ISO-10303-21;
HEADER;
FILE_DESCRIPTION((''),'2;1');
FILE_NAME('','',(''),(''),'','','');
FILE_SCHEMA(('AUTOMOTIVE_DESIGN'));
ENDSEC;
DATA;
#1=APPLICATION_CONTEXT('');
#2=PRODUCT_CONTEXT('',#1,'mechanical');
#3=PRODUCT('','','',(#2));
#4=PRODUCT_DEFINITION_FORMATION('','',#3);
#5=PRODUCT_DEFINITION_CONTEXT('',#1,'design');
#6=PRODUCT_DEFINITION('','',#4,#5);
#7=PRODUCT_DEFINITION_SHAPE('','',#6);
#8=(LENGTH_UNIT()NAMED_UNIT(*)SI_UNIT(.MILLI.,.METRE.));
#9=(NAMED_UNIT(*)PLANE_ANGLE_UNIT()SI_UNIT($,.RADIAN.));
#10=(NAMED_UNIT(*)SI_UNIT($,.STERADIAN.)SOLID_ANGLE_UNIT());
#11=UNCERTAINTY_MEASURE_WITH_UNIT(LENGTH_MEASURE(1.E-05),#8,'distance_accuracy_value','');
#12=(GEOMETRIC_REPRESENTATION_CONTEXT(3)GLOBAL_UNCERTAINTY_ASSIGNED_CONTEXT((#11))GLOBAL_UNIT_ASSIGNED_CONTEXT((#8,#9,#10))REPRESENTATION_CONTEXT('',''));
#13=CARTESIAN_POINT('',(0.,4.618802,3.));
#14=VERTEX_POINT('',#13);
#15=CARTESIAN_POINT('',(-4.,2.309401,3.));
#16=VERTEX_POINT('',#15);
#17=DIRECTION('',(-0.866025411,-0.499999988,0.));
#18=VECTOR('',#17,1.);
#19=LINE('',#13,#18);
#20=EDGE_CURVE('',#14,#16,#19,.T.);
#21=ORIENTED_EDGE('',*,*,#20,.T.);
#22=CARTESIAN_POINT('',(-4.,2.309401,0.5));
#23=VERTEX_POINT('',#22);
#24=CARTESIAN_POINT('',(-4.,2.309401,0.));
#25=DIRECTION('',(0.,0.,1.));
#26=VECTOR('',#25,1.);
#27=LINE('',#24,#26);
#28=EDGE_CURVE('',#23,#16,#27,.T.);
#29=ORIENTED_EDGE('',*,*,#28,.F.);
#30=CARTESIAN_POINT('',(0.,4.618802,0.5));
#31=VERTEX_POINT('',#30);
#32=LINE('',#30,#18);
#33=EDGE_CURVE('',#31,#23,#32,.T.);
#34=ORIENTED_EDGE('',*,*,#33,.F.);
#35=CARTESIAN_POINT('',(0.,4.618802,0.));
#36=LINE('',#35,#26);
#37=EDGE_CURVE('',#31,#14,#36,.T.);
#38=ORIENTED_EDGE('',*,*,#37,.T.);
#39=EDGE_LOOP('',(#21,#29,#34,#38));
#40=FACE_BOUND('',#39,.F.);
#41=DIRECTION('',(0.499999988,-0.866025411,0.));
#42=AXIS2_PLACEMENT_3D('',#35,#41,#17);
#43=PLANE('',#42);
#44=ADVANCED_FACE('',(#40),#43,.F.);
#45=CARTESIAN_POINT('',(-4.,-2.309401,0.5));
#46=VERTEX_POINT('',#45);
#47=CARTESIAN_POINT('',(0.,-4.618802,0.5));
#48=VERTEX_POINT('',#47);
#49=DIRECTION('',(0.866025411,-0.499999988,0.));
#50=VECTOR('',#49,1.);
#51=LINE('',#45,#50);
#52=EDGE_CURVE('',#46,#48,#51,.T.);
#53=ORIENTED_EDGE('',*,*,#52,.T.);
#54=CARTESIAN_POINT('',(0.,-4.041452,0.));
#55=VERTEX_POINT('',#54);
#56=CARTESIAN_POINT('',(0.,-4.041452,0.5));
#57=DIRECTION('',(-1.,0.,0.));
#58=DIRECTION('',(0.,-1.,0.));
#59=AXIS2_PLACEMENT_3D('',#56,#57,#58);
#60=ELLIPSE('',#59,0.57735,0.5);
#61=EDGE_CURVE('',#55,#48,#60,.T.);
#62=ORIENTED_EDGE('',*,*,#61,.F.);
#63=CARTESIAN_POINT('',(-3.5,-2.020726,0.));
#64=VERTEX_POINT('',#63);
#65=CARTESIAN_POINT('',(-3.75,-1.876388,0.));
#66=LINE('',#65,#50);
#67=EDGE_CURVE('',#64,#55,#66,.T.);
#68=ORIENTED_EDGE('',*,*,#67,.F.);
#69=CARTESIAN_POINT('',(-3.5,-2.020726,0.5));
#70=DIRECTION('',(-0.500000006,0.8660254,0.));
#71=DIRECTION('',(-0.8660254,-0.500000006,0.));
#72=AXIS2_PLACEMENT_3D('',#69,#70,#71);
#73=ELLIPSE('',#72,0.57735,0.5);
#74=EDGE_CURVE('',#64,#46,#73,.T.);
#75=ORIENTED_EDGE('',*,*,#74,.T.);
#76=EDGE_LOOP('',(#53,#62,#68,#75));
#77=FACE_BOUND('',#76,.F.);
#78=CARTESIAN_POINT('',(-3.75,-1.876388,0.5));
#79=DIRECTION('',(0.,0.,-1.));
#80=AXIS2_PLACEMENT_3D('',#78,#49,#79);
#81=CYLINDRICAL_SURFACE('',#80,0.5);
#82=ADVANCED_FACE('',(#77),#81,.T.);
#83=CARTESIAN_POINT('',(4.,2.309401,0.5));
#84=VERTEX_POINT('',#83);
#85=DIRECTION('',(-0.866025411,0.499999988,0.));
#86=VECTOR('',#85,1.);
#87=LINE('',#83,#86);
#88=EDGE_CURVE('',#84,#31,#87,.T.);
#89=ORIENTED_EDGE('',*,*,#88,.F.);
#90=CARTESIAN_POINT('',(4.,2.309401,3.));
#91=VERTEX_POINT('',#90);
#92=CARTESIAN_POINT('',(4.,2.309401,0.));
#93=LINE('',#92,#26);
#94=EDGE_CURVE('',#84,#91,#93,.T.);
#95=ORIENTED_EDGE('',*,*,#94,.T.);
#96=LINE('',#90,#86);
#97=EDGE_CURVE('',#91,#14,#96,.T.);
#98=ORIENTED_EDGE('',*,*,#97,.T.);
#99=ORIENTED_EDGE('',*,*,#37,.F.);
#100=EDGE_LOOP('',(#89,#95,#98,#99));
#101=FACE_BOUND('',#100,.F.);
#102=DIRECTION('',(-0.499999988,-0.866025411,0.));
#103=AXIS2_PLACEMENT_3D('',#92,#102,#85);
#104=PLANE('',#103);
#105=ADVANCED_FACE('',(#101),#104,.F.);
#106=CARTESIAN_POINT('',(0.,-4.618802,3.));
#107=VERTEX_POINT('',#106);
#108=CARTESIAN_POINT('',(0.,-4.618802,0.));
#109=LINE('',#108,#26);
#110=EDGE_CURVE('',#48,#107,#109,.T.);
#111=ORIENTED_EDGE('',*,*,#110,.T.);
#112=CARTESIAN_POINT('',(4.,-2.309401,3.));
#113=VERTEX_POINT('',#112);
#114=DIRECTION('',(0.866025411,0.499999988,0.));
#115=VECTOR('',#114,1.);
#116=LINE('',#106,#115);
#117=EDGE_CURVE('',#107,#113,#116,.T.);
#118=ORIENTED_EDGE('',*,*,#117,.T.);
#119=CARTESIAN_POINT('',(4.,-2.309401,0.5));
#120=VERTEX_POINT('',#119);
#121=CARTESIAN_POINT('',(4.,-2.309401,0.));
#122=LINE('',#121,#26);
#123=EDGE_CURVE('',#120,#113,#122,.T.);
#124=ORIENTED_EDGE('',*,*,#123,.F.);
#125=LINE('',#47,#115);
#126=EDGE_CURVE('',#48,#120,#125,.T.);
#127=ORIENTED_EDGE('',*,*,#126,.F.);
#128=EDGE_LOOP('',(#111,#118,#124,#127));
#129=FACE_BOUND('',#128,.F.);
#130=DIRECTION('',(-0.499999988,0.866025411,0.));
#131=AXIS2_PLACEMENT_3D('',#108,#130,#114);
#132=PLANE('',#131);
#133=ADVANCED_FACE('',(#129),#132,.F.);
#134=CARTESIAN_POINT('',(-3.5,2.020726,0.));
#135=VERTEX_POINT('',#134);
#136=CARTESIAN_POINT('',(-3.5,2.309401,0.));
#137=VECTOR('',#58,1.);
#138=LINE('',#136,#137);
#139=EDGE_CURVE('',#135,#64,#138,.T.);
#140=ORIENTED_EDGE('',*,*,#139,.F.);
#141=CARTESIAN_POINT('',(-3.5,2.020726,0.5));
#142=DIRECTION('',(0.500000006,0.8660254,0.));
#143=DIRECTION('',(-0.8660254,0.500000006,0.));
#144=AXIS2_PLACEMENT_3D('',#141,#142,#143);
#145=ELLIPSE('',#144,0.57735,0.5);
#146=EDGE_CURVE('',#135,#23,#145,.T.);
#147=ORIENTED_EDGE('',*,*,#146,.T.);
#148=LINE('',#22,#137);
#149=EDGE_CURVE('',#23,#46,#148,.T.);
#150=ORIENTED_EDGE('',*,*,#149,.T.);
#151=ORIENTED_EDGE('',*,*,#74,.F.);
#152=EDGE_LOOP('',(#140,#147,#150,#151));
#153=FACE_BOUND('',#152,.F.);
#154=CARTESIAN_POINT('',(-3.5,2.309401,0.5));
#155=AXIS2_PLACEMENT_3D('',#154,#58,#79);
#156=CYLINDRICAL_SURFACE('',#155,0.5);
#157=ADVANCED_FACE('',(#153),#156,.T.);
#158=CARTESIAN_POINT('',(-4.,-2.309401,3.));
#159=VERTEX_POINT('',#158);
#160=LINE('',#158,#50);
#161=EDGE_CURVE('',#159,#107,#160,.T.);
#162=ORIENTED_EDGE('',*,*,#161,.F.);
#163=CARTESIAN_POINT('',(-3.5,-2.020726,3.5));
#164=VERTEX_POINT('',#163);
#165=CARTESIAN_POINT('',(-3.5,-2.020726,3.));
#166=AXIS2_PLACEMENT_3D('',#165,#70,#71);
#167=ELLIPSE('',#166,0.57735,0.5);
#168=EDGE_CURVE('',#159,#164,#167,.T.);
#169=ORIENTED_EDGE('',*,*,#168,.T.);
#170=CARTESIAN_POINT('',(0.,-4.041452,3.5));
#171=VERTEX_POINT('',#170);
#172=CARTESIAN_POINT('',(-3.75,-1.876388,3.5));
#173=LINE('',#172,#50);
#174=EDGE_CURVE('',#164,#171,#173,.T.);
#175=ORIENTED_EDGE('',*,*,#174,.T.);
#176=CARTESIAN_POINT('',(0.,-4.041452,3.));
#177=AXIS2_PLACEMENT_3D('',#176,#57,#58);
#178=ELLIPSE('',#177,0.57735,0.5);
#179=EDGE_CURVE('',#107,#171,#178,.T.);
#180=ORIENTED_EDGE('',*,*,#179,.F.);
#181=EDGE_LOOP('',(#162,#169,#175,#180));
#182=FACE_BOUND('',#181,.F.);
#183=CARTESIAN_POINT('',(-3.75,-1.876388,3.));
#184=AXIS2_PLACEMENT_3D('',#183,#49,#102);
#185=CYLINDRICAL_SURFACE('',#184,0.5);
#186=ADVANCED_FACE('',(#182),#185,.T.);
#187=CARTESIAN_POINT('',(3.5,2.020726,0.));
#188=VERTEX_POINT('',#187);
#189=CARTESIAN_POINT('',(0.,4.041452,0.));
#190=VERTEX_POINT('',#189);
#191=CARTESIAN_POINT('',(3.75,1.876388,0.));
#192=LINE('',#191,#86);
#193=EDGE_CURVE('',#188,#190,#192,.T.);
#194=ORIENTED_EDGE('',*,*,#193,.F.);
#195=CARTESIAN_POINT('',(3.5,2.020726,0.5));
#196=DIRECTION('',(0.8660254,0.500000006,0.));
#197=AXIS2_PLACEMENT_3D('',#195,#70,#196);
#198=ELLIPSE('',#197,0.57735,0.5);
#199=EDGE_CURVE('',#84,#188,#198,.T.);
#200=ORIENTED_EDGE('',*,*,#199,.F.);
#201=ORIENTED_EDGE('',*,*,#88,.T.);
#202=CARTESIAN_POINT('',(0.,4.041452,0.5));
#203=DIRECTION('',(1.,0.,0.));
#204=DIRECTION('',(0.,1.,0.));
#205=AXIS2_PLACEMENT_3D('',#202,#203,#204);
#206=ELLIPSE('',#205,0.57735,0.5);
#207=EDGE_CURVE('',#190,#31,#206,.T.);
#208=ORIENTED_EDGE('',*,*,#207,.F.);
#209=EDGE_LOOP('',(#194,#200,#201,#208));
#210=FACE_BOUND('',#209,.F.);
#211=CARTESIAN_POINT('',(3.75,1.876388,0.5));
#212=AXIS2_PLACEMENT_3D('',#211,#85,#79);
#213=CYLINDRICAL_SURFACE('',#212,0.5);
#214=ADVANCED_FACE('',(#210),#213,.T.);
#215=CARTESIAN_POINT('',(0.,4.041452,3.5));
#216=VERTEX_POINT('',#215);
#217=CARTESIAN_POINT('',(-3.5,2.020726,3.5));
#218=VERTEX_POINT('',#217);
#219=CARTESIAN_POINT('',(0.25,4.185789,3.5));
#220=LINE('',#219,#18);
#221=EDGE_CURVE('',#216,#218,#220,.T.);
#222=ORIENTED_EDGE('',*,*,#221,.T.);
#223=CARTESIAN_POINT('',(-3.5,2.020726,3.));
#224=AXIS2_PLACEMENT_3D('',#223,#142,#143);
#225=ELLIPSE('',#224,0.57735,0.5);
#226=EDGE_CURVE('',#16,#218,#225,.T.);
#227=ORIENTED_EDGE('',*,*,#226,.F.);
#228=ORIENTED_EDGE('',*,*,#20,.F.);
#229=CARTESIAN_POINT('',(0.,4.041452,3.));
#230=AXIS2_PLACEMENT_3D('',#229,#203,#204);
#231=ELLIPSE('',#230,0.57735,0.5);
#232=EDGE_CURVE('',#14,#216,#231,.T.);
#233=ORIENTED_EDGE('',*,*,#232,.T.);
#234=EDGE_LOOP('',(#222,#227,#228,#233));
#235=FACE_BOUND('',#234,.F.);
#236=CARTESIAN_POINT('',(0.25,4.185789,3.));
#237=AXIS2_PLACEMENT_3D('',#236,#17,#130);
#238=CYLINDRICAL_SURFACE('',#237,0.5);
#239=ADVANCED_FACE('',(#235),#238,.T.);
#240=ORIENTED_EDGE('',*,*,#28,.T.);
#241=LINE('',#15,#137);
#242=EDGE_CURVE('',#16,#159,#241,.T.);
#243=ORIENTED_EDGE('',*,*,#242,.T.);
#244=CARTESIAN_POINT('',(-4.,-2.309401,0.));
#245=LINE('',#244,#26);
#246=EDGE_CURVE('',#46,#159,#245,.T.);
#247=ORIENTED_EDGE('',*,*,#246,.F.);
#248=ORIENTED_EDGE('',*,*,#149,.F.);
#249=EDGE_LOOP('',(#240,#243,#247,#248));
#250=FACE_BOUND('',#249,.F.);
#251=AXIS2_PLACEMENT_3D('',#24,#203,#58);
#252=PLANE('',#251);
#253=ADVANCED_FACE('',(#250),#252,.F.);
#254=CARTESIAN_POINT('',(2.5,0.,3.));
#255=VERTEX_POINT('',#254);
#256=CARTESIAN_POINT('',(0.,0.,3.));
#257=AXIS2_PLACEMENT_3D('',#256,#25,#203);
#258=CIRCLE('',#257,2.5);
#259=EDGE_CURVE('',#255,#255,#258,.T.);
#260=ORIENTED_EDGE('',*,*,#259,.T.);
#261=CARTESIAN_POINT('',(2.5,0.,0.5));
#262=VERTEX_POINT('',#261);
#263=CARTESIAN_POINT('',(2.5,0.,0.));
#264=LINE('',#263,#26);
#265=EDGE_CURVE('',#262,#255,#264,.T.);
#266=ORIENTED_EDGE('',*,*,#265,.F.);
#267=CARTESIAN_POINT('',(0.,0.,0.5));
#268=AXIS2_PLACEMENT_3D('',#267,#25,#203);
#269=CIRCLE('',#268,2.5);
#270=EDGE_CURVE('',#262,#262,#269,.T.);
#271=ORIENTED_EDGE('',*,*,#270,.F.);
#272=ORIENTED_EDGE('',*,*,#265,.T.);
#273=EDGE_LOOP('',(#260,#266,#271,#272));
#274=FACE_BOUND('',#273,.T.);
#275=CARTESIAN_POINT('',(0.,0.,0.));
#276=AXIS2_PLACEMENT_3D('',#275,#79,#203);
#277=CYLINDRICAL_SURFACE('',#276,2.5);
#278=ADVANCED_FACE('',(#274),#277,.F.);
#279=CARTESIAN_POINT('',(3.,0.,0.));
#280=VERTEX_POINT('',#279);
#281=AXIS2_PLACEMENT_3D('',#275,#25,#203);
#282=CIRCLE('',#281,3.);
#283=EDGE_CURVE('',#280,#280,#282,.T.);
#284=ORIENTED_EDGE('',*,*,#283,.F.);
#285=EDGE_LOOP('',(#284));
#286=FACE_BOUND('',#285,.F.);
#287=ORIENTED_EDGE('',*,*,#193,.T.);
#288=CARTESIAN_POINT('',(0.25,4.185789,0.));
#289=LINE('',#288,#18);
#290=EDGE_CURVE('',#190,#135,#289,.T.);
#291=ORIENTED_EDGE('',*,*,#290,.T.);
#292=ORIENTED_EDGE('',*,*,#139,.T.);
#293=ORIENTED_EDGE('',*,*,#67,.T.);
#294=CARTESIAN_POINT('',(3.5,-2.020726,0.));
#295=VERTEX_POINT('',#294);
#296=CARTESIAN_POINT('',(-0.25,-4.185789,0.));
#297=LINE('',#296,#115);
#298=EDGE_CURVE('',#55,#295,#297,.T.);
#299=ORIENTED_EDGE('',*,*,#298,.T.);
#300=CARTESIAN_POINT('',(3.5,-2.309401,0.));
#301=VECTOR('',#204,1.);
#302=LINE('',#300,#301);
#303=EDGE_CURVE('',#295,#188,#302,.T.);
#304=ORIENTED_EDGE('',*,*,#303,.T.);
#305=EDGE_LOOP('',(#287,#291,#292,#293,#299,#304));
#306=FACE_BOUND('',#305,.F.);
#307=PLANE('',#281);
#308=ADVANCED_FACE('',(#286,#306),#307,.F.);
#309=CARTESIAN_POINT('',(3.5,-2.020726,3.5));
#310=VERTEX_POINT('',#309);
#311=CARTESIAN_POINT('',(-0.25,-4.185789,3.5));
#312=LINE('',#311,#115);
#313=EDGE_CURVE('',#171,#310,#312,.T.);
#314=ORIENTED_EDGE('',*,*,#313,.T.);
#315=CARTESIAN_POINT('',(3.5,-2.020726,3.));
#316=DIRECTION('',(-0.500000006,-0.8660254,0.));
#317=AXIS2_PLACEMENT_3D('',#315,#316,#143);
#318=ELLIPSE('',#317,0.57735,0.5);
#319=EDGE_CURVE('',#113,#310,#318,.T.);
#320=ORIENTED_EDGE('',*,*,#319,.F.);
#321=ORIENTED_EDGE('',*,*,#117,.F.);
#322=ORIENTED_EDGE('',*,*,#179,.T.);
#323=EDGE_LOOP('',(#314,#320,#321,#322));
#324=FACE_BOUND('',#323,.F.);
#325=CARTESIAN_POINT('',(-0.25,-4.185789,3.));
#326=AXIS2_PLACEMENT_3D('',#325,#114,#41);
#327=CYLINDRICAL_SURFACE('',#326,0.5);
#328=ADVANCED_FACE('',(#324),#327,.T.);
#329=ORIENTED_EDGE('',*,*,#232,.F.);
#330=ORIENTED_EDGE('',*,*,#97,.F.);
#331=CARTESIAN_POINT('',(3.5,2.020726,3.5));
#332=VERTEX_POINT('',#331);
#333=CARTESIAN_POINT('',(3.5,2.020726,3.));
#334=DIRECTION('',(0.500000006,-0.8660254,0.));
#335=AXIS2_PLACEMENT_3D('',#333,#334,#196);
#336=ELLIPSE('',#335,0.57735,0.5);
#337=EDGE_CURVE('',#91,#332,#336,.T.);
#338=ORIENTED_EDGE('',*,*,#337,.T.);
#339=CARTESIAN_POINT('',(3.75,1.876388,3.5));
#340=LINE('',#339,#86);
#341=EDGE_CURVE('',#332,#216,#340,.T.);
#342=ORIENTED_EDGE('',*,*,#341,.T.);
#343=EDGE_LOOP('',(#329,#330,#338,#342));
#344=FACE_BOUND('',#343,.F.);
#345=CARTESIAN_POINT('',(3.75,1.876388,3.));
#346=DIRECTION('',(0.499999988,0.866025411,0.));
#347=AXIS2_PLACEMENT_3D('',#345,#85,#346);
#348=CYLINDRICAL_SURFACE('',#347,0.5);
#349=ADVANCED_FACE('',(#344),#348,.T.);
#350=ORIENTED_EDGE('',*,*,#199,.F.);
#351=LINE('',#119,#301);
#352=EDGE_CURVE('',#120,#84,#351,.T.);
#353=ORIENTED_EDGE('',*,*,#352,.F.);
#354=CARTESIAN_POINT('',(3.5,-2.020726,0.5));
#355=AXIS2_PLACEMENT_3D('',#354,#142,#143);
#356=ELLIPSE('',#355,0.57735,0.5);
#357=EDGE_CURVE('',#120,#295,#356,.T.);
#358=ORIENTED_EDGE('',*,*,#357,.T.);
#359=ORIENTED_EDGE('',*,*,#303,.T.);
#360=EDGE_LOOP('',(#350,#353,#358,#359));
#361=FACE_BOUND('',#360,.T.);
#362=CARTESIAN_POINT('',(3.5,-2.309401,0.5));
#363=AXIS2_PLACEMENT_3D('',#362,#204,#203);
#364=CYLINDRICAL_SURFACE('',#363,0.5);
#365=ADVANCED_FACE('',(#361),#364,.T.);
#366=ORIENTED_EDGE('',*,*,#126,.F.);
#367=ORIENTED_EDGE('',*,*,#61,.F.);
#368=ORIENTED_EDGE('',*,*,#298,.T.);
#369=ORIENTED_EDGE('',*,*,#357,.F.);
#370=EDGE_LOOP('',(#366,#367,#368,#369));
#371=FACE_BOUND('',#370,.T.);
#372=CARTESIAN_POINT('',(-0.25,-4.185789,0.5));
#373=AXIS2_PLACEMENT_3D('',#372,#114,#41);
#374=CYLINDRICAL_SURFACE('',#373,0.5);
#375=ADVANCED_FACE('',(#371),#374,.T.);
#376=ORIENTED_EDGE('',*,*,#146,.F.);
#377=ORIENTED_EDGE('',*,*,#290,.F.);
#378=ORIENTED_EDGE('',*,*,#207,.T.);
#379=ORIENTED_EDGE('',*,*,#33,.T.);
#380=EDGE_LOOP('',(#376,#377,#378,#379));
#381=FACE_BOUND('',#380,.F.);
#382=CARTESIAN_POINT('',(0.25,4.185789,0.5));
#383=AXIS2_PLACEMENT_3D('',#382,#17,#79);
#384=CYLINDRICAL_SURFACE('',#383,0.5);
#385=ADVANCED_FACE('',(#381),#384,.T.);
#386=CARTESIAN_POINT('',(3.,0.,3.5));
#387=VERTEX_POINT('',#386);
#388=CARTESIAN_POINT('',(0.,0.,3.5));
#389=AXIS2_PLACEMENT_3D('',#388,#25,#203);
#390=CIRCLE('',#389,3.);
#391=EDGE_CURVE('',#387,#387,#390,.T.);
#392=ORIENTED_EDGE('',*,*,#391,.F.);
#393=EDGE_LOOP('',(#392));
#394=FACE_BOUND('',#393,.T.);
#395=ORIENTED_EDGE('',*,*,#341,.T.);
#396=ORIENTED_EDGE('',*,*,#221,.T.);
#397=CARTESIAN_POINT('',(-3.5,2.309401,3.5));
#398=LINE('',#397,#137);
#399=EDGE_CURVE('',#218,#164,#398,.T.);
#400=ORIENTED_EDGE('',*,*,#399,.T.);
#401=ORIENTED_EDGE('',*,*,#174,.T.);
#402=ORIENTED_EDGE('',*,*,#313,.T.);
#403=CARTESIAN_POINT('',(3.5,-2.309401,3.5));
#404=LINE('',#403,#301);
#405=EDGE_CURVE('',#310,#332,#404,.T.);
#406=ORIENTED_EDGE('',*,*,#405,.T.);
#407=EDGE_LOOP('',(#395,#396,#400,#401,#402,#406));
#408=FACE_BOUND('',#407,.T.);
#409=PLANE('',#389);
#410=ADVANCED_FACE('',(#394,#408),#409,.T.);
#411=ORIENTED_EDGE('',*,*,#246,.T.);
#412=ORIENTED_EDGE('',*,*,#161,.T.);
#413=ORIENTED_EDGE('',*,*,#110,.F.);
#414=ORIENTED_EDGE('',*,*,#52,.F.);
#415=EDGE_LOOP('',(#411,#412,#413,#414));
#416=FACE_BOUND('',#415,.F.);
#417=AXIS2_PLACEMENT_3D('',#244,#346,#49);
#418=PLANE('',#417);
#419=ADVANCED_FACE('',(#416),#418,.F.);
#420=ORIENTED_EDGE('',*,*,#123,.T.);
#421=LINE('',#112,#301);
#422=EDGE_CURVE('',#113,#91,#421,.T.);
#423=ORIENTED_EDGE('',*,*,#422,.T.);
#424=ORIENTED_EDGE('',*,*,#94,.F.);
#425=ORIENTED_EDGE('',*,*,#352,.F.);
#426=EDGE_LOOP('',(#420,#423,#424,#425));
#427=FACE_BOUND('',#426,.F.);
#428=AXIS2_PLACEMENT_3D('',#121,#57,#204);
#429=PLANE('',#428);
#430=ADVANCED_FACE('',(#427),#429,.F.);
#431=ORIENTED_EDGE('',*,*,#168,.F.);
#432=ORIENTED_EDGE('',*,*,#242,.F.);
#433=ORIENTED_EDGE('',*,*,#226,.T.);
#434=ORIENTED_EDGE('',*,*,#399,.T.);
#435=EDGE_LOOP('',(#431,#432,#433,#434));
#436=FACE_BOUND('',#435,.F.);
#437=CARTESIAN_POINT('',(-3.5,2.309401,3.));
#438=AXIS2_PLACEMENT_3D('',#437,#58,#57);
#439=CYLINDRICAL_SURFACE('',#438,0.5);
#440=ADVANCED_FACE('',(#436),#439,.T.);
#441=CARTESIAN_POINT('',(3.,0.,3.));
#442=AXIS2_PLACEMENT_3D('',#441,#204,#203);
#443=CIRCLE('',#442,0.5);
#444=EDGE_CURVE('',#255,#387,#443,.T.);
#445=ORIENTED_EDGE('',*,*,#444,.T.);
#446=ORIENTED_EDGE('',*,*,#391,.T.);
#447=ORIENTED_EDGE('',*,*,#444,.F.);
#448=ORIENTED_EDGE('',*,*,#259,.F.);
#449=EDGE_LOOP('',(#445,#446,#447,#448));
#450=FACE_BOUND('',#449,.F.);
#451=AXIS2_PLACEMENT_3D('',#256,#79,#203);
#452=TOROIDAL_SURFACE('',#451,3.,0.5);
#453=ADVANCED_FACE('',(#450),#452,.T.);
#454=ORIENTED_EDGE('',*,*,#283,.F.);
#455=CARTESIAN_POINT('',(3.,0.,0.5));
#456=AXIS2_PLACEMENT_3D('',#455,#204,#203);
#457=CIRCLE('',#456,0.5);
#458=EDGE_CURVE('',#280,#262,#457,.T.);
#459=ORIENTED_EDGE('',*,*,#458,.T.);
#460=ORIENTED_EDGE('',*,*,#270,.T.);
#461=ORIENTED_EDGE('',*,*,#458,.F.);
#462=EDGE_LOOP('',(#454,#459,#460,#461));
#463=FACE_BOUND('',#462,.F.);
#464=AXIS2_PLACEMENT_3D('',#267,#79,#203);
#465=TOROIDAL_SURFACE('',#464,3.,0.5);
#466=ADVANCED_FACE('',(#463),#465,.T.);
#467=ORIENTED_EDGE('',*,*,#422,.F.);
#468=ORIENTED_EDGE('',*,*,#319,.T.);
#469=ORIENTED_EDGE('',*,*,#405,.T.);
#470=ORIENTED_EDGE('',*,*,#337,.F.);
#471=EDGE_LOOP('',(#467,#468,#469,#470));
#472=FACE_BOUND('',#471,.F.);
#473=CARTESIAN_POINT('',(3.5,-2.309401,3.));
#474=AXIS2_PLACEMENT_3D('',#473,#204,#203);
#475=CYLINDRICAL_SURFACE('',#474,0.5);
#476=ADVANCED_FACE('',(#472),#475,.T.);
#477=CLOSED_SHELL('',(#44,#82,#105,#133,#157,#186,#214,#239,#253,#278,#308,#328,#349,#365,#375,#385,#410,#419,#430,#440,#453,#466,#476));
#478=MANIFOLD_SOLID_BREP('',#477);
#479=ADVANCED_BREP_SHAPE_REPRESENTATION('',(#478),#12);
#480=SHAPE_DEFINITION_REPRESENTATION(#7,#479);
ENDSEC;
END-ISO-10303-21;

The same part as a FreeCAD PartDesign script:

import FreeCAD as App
import Part
import Sketcher
from FreeCAD import Vector
Q = App.Units.Quantity


def edges_at(feature, points):
    """Names of the edges that pass closest to the given points."""
    edges = feature.Shape.Edges
    near = lambda p: min(range(len(edges)), key=lambda i: edges[i].distToShape(Part.Vertex(*p))[0])
    return sorted({f"Edge{near(p) + 1}" for p in points})


def add_polygon(sketch, points):
    """Adds a closed chain of lines whose ends are joined by coincident constraints."""
    first, n = sketch.GeometryCount, len(points)
    for a, b in zip(points, points[1:] + points[:1]):
        sketch.addGeometry(Part.LineSegment(App.Vector(*a, 0), App.Vector(*b, 0)), False)
    for i in range(n):
        sketch.addConstraint(Sketcher.Constraint("Coincident", first + i, 2, first + (i + 1) % n, 1))

doc = App.newDocument("Part")
body = doc.addObject("PartDesign::Body", "Body")

# Sketch on XY plane
sketch1 = body.newObject("Sketcher::SketchObject", "Sketch")
sketch1.AttachmentSupport = (doc.getObject("XY_Plane"), [""])
sketch1.MapMode = "FlatFace"
add_polygon(sketch1, [(4, -2.3), (4, 2.3), (0, 4.6), (-4, 2.3), (-4, -2.3), (0, -4.6)])  # lines 0-5
sketch1.addGeometry(Part.Circle(Vector(0, 0, 0), Vector(0, 0, 1), 2.5), False)  # 6
sketch1.addConstraint([
    Sketcher.Constraint("Vertical", 0),
    Sketcher.Constraint("Vertical", 3),
    Sketcher.Constraint("Coincident", 6, 3, -1, 1),
    Sketcher.Constraint("Symmetric", 0, 2, 3, 2, -1, 1),
    Sketcher.Constraint("Symmetric", 1, 2, 4, 2, -1, 1),
    Sketcher.Constraint("PointOnObject", 1, 2, -2),
    Sketcher.Constraint("Parallel", 2, 5),
    Sketcher.Constraint("Horizontal", 0, 2, 2, 2),
    Sketcher.Constraint("Diameter", 6, 5.0),
    Sketcher.Constraint("Angle", 1, Q("150.000001 deg")),
    Sketcher.Constraint("DistanceX", -1, 1, 0, 2, 4.0),
    Sketcher.Constraint("DistanceY", 0, 1, 0, 2, 4.618802),
])
pad1 = body.newObject("PartDesign::Pad", "Pad")
pad1.Profile = sketch1
pad1.Length = 3.5
doc.recompute()

fillet = body.newObject("PartDesign::Fillet", "Fillet")
fillet.Base = (pad1, edges_at(pad1, [
    (4, 0, 3.5),
    (2, 3.464, 3.5),
    (-2, 3.464, 3.5),
    (-4, 0, 3.5),
    (-2, -3.464, 3.5),
    (2, -3.464, 3.5),
    (-2.5, 0, 3.5),
]))
fillet.Radius = 0.5
doc.recompute()

fillet2 = body.newObject("PartDesign::Fillet", "Fillet001")
fillet2.Base = (fillet, edges_at(fillet, [
    (4, 0, 0),
    (2, 3.464, 0),
    (-2, 3.464, 0),
    (-4, 0, 0),
    (-2, -3.464, 0),
    (2, -3.464, 0),
    (-2.5, 0, 0),
]))
fillet2.Radius = 0.5

doc.recompute()
